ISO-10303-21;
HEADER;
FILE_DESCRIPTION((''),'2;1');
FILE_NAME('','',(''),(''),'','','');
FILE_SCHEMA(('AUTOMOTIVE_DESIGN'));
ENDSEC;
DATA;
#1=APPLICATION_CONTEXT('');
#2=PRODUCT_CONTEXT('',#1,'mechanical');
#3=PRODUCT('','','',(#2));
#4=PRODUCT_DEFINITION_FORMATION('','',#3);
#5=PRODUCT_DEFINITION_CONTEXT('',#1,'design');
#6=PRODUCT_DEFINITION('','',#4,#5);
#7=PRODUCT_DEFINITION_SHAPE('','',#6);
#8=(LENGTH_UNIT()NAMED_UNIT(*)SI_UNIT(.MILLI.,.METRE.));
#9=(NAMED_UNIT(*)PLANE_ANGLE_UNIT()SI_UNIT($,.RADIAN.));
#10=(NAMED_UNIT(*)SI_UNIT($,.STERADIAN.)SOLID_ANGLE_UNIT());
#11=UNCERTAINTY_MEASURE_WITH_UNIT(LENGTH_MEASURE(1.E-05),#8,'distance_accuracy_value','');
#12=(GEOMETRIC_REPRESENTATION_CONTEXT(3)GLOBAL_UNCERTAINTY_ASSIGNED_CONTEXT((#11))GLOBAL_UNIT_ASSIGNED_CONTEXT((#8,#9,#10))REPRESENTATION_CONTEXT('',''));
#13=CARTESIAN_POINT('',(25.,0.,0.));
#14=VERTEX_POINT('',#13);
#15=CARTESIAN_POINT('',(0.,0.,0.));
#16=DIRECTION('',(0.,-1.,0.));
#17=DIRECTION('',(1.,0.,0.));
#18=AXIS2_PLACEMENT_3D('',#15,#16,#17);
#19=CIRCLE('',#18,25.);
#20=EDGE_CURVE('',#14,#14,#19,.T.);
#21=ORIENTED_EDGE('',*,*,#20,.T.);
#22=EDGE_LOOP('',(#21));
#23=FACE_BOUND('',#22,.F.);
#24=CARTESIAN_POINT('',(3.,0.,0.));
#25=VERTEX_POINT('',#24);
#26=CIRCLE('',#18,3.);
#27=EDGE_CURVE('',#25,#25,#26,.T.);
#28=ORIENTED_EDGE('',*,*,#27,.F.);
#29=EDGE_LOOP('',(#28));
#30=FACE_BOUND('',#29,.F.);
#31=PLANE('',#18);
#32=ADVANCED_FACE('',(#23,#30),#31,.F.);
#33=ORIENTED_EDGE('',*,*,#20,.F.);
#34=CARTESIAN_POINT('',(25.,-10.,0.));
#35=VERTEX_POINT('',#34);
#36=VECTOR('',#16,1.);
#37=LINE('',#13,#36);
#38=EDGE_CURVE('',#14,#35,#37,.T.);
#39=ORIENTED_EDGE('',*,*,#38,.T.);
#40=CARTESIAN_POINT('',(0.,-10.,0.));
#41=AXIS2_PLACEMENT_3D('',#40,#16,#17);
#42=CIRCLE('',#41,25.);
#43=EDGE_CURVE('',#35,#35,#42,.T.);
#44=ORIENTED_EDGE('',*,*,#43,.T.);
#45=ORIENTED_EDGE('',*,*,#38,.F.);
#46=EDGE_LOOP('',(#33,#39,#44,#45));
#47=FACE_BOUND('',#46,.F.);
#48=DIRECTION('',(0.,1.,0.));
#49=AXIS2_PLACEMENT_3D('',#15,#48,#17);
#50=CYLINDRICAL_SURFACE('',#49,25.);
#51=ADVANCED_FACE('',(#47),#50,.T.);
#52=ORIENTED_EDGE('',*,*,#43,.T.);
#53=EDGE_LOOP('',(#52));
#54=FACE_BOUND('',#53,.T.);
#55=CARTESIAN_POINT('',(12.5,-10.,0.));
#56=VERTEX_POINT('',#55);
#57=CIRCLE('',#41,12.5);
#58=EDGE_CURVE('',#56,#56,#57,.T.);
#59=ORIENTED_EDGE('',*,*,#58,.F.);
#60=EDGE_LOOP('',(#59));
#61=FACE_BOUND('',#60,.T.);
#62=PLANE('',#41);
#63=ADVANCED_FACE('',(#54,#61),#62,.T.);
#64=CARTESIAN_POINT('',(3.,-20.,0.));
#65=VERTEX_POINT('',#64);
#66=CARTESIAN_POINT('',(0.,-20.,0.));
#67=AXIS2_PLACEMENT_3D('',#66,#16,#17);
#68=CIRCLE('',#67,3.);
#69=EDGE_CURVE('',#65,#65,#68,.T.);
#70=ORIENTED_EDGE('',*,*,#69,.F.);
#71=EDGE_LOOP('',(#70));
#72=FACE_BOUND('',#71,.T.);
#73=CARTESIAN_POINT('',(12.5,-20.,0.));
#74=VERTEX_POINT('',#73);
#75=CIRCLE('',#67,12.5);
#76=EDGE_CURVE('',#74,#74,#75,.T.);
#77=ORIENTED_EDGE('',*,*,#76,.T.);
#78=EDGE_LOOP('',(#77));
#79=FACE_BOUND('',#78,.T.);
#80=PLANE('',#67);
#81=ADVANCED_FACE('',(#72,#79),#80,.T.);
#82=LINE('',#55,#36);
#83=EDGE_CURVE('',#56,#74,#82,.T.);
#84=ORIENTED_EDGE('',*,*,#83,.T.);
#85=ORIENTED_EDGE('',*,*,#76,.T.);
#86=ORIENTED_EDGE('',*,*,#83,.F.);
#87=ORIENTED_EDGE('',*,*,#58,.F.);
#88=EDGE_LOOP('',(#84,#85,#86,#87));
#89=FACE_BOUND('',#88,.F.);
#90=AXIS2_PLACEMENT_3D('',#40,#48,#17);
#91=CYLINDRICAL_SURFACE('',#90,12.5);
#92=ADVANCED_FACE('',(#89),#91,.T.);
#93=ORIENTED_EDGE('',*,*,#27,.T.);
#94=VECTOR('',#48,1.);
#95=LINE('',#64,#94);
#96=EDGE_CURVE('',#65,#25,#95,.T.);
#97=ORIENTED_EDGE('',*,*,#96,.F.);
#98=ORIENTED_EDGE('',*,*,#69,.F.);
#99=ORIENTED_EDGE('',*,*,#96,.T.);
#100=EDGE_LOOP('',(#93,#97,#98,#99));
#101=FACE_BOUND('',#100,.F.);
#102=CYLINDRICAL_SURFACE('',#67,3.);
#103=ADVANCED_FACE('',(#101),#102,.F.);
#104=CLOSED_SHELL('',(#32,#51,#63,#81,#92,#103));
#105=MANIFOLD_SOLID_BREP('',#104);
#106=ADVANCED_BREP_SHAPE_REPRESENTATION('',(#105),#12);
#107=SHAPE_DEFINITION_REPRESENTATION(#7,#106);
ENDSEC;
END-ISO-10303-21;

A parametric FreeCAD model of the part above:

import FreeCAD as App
import Part
import Sketcher

V = App.Vector

doc = App.newDocument("Part")
body = doc.addObject("PartDesign::Body", "Body")

sketch1 = body.newObject("Sketcher::SketchObject", "Sketch")
sketch1.AttachmentSupport = (doc.getObject("XZ_Plane"), [""])
sketch1.MapMode = "FlatFace"
sketch1.addGeometry(Part.Circle(V(0, 0, 0), V(0, 0, 1), 25), False)
sketch1.addConstraint([
    Sketcher.Constraint("Coincident", 0, 3, -1, 1),
    Sketcher.Constraint("Diameter", 0, 50.0),
])
pad1 = body.newObject("PartDesign::Pad", "Pad")
pad1.Profile = sketch1
pad1.Length = 10

sketch2 = body.newObject("Sketcher::SketchObject", "Sketch001")
sketch2.AttachmentSupport = (doc.getObject("XZ_Plane"), [""])
sketch2.MapMode = "FlatFace"
sketch2.AttachmentOffset = App.Placement(V(0, 0, 10), App.Rotation())
sketch2.addGeometry(Part.Circle(V(0, 0, 0), V(0, 0, 1), 12), False)
sketch2.addConstraint([
    Sketcher.Constraint("Coincident", 0, 3, -1, 1),
    Sketcher.Constraint("Diameter", 0, 25.0),
])
pad2 = body.newObject("PartDesign::Pad", "Pad001")
pad2.Profile = sketch2
pad2.Length = 10

sketch3 = body.newObject("Sketcher::SketchObject", "Sketch002")
sketch3.AttachmentSupport = (doc.getObject("XZ_Plane"), [""])
sketch3.MapMode = "FlatFace"
sketch3.AttachmentOffset = App.Placement(V(0, 0, 20), App.Rotation())
sketch3.addGeometry(Part.Circle(V(0, 0, 0), V(0, 0, 1), 3), False)
sketch3.addConstraint([
    Sketcher.Constraint("Coincident", 0, 3, -1, 1),
    Sketcher.Constraint("Diameter", 0, 6.0),
])
pocket1 = body.newObject("PartDesign::Pocket", "Pocket")
pocket1.Profile = sketch3
pocket1.Length = 20

doc.recompute()
